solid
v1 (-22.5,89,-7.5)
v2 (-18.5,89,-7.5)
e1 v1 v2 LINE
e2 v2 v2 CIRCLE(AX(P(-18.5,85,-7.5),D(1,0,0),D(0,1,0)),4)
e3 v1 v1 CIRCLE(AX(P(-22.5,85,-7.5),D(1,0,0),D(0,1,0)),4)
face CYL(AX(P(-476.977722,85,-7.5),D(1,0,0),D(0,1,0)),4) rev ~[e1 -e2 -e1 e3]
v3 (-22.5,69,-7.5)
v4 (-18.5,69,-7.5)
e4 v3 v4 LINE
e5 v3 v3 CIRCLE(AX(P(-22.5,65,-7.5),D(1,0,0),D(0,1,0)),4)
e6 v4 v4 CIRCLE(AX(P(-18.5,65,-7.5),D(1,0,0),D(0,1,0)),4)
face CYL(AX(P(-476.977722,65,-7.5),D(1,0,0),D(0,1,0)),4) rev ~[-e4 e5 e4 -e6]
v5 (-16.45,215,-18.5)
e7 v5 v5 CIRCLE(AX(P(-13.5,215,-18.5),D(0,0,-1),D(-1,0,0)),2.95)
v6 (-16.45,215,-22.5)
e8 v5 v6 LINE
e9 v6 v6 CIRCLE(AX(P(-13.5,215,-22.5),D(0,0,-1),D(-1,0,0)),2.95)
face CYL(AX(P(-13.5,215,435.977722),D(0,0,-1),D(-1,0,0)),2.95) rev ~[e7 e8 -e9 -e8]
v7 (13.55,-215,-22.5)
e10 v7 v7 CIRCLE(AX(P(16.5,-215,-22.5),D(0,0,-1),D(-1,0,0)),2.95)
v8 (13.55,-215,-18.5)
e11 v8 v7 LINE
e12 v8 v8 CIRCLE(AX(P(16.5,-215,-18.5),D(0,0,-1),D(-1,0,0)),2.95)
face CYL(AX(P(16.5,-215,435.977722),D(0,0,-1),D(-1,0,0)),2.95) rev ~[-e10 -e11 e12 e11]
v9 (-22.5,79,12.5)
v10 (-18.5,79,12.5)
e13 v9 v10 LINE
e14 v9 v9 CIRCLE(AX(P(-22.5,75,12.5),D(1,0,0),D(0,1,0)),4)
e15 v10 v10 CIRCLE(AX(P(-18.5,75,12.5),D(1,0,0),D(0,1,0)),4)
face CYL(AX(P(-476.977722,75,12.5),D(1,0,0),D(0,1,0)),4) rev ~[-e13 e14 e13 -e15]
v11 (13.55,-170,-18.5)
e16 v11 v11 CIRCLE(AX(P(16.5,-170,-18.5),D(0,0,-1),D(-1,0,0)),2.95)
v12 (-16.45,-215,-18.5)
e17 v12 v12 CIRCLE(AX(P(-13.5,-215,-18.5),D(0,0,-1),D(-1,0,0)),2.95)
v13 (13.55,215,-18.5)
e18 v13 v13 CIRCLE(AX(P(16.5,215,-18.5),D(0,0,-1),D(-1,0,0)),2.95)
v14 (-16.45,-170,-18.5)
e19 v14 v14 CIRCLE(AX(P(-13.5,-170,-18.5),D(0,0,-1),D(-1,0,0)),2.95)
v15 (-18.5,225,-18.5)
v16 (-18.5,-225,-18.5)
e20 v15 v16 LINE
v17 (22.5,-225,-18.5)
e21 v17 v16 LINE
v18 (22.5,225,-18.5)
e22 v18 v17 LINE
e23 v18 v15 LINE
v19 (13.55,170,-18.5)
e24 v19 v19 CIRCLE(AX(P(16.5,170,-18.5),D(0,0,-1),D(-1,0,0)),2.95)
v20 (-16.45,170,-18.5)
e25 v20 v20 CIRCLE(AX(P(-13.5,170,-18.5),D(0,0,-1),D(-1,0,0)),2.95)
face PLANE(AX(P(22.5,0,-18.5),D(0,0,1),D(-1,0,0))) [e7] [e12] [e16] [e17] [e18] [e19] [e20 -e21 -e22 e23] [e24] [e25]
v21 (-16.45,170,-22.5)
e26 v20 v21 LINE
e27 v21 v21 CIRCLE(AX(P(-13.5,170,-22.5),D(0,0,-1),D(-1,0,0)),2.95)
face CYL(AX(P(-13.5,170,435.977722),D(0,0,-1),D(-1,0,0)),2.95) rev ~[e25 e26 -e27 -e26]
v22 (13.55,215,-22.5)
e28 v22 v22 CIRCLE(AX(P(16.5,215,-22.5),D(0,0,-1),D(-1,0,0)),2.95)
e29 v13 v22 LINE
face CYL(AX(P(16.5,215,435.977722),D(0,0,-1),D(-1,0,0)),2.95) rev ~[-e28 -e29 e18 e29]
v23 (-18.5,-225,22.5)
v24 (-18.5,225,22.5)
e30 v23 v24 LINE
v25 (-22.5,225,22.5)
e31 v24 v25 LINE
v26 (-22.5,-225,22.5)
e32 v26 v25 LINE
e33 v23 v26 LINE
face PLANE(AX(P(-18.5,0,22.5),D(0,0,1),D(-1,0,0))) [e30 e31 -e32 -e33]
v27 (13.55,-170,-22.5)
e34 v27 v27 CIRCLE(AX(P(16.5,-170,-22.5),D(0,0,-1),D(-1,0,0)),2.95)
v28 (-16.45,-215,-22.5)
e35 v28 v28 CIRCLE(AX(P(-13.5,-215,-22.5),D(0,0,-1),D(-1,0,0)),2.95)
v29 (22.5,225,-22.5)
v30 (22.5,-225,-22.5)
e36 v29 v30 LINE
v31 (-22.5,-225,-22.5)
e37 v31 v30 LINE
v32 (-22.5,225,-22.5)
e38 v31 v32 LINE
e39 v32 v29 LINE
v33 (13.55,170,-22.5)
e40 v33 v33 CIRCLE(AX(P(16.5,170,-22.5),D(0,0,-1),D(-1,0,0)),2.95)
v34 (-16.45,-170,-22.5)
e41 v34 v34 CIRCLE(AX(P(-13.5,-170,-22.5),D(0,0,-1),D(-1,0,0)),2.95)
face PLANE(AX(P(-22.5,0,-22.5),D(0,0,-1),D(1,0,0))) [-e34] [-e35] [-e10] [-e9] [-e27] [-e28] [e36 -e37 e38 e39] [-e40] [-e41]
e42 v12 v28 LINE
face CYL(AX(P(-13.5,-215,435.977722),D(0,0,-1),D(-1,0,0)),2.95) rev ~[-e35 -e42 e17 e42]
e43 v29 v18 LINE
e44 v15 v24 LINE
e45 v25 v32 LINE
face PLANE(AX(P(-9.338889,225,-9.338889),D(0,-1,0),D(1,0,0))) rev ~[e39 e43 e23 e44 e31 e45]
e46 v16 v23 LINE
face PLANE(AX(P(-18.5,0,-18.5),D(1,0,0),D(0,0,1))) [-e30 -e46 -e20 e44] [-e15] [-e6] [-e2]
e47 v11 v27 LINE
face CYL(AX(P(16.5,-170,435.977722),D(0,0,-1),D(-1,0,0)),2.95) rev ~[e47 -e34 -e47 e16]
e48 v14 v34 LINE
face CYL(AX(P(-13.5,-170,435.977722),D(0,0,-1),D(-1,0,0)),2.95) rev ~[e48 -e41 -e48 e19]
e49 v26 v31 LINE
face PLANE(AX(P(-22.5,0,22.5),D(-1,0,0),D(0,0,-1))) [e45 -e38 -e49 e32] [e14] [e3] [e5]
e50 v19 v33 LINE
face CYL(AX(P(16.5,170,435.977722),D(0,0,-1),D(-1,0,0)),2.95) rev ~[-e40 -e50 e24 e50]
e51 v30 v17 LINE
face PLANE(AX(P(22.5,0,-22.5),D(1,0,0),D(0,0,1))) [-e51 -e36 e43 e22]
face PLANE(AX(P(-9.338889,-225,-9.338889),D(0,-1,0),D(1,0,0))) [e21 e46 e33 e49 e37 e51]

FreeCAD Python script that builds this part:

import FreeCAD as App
import Part
import Sketcher


def add_polygon(sketch, points):
    """Adds a closed chain of lines whose ends are joined by coincident constraints."""
    first, n = sketch.GeometryCount, len(points)
    for a, b in zip(points, points[1:] + points[:1]):
        sketch.addGeometry(Part.LineSegment(App.Vector(*a, 0), App.Vector(*b, 0)), False)
    for i in range(n):
        sketch.addConstraint(Sketcher.Constraint("Coincident", first + i, 2, first + (i + 1) % n, 1))

doc = App.newDocument("Part")
body = doc.addObject("PartDesign::Body", "Body")

sketch1 = body.newObject("Sketcher::SketchObject", "Sketch")
sketch1.AttachmentSupport = (doc.getObject("XZ_Plane"), [""])
sketch1.MapMode = "FlatFace"
add_polygon(sketch1, [(-22.5, -22.5), (22.5, -22.5), (22.5, -18.5), (-18.5, -18.5), (-18.5, 22.5), (-22.5, 22.5)])
sketch1.addConstraint([
    Sketcher.Constraint("Horizontal", 0),
    Sketcher.Constraint("Vertical", 1),
    Sketcher.Constraint("Horizontal", 2),
    Sketcher.Constraint("Vertical", 3),
    Sketcher.Constraint("Horizontal", 4),
    Sketcher.Constraint("Vertical", 5),
    Sketcher.Constraint("Symmetric", 0, 2, 4, 2, -1, 1),
    Sketcher.Constraint("Equal", 4, 1),
    Sketcher.Constraint("Equal", 2, 3),
    Sketcher.Constraint("DistanceX", 0, 1, 0, 2, 45.0),
    Sketcher.Constraint("DistanceX", 2, 2, 2, 1, 41.0),
])
pad1 = body.newObject("PartDesign::Pad", "Pad")
pad1.Profile = sketch1
pad1.Length = 450
pad1.Midplane = True

sketch2 = body.newObject("Sketcher::SketchObject", "Sketch001")
sketch2.AttachmentSupport = (doc.getObject("YZ_Plane"), [""])
sketch2.MapMode = "FlatFace"
sketch2.AttachmentOffset = App.Placement(App.Vector(0, 0, -22.5), App.Rotation())
sketch2.addGeometry([
    Part.Circle(App.Vector(75, 12.5, 0), App.Vector(0, 0, 1), 4),
    Part.Circle(App.Vector(85, -7.5, 0), App.Vector(0, 0, 1), 4),
    Part.Circle(App.Vector(65, -7.5, 0), App.Vector(0, 0, 1), 4),
], False)
sketch2.addConstraint([
    Sketcher.Constraint("Equal", 0, 1),
    Sketcher.Constraint("Equal", 1, 2),
    Sketcher.Constraint("Horizontal", 1, 3, 2, 3),
    Sketcher.Constraint("Diameter", 0, 8.0),
    Sketcher.Constraint("DistanceX", -1, 1, 0, 3, 75.0),
    Sketcher.Constraint("DistanceX", -1, 1, 1, 3, 85.0),
    Sketcher.Constraint("DistanceX", -1, 1, 2, 3, 65.0),
    Sketcher.Constraint("DistanceY", 1, 3, 0, 3, 20.0),
    Sketcher.Constraint("DistanceY", -1, 1, 0, 3, 12.5),
])
doc.recompute()
hole = body.newObject("PartDesign::Hole", "Hole")
hole.Profile = sketch2
hole.ThreadType = "None"
hole.Diameter = 8
hole.DepthType = "ThroughAll"
hole.Reversed = True

sketch3 = body.newObject("Sketcher::SketchObject", "Sketch002")
sketch3.AttachmentSupport = (doc.getObject("XY_Plane"), [""])
sketch3.MapMode = "FlatFace"
sketch3.AttachmentOffset = App.Placement(App.Vector(0, 0, -18.5), App.Rotation())
sketch3.addGeometry([
    Part.Circle(App.Vector(-13.5, -170, 0), App.Vector(0, 0, 1), 3),
    Part.Circle(App.Vector(16.5, -170, 0), App.Vector(0, 0, 1), 3),
    Part.Circle(App.Vector(16.5, -215, 0), App.Vector(0, 0, 1), 3),
    Part.Circle(App.Vector(-13.5, -215, 0), App.Vector(0, 0, 1), 3),
    Part.Circle(App.Vector(-13.5, 215, 0), App.Vector(0, 0, 1), 3),
    Part.Circle(App.Vector(16.5, 215, 0), App.Vector(0, 0, 1), 3),
    Part.Circle(App.Vector(16.5, 170, 0), App.Vector(0, 0, 1), 3),
    Part.Circle(App.Vector(-13.5, 170, 0), App.Vector(0, 0, 1), 3),
], False)
sketch3.addConstraint([
    Sketcher.Constraint("Equal", 0, 1),
    Sketcher.Constraint("Equal", 1, 2),
    Sketcher.Constraint("Equal", 2, 3),
    Sketcher.Constraint("Equal", 3, 4),
    Sketcher.Constraint("Equal", 4, 5),
    Sketcher.Constraint("Equal", 5, 6),
    Sketcher.Constraint("Equal", 6, 7),
    Sketcher.Constraint("Symmetric", 3, 3, 4, 3, -1),
    Sketcher.Constraint("Symmetric", 2, 3, 5, 3, -1),
    Sketcher.Constraint("Symmetric", 1, 3, 6, 3, -1),
    Sketcher.Constraint("Symmetric", 0, 3, 7, 3, -1),
    Sketcher.Constraint("Horizontal", 0, 3, 1, 3),
    Sketcher.Constraint("Horizontal", 2, 3, 3, 3),
    Sketcher.Constraint("Vertical", 1, 3, 2, 3),
    Sketcher.Constraint("Vertical", 0, 3, 3, 3),
    Sketcher.Constraint("Diameter", 0, 5.9),
    Sketcher.Constraint("DistanceY", 0, 3, -1, 1, 170.0),
    Sketcher.Constraint("DistanceY", 2, 3, -1, 1, 215.0),
    Sketcher.Constraint("DistanceX", 0, 3, 1, 3, 30.0),
    Sketcher.Constraint("DistanceX", 0, 3, -1, 1, 13.5),
])
doc.recompute()
hole2 = body.newObject("PartDesign::Hole", "Hole001")
hole2.Profile = sketch3
hole2.ThreadType = "None"
hole2.Diameter = 5.9
hole2.DepthType = "ThroughAll"

doc.recompute()
